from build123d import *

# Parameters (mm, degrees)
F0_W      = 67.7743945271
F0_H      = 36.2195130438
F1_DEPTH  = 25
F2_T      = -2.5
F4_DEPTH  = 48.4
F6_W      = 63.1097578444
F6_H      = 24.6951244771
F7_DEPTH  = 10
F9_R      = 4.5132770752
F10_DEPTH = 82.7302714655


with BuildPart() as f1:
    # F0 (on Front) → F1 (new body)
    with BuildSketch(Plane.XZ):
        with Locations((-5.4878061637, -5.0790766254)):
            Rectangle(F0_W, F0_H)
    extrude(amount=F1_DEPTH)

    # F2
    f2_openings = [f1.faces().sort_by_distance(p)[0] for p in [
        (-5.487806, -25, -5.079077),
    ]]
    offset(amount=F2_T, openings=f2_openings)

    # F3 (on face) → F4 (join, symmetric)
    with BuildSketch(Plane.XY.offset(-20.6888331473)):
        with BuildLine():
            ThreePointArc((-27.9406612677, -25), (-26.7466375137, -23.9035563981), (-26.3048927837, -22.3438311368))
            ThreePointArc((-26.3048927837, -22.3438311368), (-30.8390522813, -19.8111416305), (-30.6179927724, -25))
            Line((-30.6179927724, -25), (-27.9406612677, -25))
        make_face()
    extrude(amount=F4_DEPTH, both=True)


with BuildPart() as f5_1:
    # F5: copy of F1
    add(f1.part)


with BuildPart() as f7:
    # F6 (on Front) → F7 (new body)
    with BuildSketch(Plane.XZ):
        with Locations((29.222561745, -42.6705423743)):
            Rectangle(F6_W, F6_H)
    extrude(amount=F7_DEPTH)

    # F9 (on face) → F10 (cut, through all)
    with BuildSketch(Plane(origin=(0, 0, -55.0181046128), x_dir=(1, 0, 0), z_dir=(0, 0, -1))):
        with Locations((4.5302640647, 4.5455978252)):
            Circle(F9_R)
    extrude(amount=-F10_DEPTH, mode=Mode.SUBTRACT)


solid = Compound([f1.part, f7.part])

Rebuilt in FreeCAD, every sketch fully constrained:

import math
import FreeCAD as App
import Part
import Sketcher

V = App.Vector
Q = App.Units.Quantity


def faces_at(feature, points):
    """Names of the faces that lie closest to the given points."""
    faces = feature.Shape.Faces
    near = lambda p: min(range(len(faces)), key=lambda i: faces[i].distToShape(Part.Vertex(*p))[0])
    return sorted({f"Face{near(p) + 1}" for p in points})

doc = App.newDocument("Part")
body = doc.addObject("PartDesign::Body", "Body")

# Sketch on XZ plane
sketch1 = doc.addObject("Sketcher::SketchObject", "Sketch")
body.addObject(sketch1)
sketch1.AttachmentSupport = (doc.XZ_Plane, [""])
sketch1.MapMode = "FlatFace"
sketch1.addGeometry([
    Part.LineSegment(V(-39, 13, 0), V(-39, -23, 0)),
    Part.LineSegment(V(-39, -23, 0), V(28, -23, 0)),
    Part.LineSegment(V(28, -23, 0), V(28, 13, 0)),
    Part.LineSegment(V(28, 13, 0), V(-39, 13, 0)),
], False)
sketch1.addConstraint([
    Sketcher.Constraint("Coincident", 0, 2, 1, 1),
    Sketcher.Constraint("Coincident", 1, 2, 2, 1),
    Sketcher.Constraint("Coincident", 2, 2, 3, 1),
    Sketcher.Constraint("Coincident", 3, 2, 0, 1),
    Sketcher.Constraint("Vertical", 0),
    Sketcher.Constraint("Horizontal", 1),
    Sketcher.Constraint("Vertical", 2),
    Sketcher.Constraint("Horizontal", 3),
    Sketcher.Constraint("DistanceX", 1, 1, 1, 2, Q("67.774395 mm")),
    Sketcher.Constraint("DistanceY", 0, 2, 0, 1, Q("36.219513 mm")),
    Sketcher.Constraint("DistanceX", -1, 1, 1, 2, Q("28.399391 mm")),
    Sketcher.Constraint("DistanceY", -1, 1, 2, 2, Q("13.03068 mm")),
])
pad1 = doc.addObject("PartDesign::Pad", "Pad")
body.addObject(pad1)
pad1.Profile = sketch1
pad1.Length = 25
doc.recompute()

thickness = doc.addObject("PartDesign::Thickness", "Thickness")
body.addObject(thickness)
thickness.Base = (pad1, faces_at(pad1, [(-5.488, -25, -5.079)]))
thickness.Value = 2.5
thickness.Reversed = True
thickness.Join = "Arc"

# Sketch on XY plane
sketch2 = doc.addObject("Sketcher::SketchObject", "Sketch001")
body.addObject(sketch2)
sketch2.AttachmentSupport = (doc.XY_Plane, [""])
sketch2.MapMode = "FlatFace"
sketch2.AttachmentOffset = App.Placement(V(0, 0, -20.688833), App.Rotation())
sketch2.addGeometry([
    Part.ArcOfCircle(Part.Circle(V(-29.3, -22.3, 0), V(0, 0, 1), 3), math.radians(-63), math.radians(0)),
    Part.ArcOfCircle(Part.Circle(V(-29.3, -22.3, 0), V(0, 0, 1), 3), math.radians(0), math.radians(243)),
    Part.LineSegment(V(-30.6, -25, 0), V(-27.9, -25, 0)),
], False)
sketch2.addConstraint([
    Sketcher.Constraint("Tangent", 0, 2, 1, 1),
    Sketcher.Constraint("Coincident", 1, 2, 2, 1),
    Sketcher.Constraint("Coincident", 2, 2, 0, 1),
    Sketcher.Constraint("Horizontal", 2),
    Sketcher.Constraint("Equal", 0, 1),
    Sketcher.Constraint("Horizontal", 1, 3, 0, 2),
    Sketcher.Constraint("DistanceY", 1, 2, -1, 1, Q("25 mm")),
    Sketcher.Constraint("Radius", 0, Q("2.974434 mm")),
    Sketcher.Constraint("DistanceX", 2, 1, 2, 2, Q("2.677332 mm")),
    Sketcher.Constraint("DistanceX", 2, 2, -1, 1, Q("27.940661 mm")),
])
pad2 = doc.addObject("PartDesign::Pad", "Pad001")
body.addObject(pad2)
pad2.Profile = sketch2
pad2.Length = 96.8
pad2.Midplane = True
body2 = doc.addObject("PartDesign::Body", "Body001")
doc.recompute()

body2.BaseFeature = body
doc.recompute()
body3 = doc.addObject("PartDesign::Body", "Body002")

# Sketch on XZ plane
sketch3 = doc.addObject("Sketcher::SketchObject", "Sketch002")
body3.addObject(sketch3)
sketch3.AttachmentSupport = (doc.getObject("XZ_Plane002"), [""])
sketch3.MapMode = "FlatFace"
sketch3.addGeometry([
    Part.LineSegment(V(-2, -30, 0), V(-2, -55, 0)),
    Part.LineSegment(V(-2, -55, 0), V(61, -55, 0)),
    Part.LineSegment(V(61, -55, 0), V(61, -30, 0)),
    Part.LineSegment(V(61, -30, 0), V(-2, -30, 0)),
], False)
sketch3.addConstraint([
    Sketcher.Constraint("Coincident", 0, 2, 1, 1),
    Sketcher.Constraint("Coincident", 1, 2, 2, 1),
    Sketcher.Constraint("Coincident", 2, 2, 3, 1),
    Sketcher.Constraint("Coincident", 3, 2, 0, 1),
    Sketcher.Constraint("Vertical", 0),
    Sketcher.Constraint("Horizontal", 1),
    Sketcher.Constraint("Vertical", 2),
    Sketcher.Constraint("Horizontal", 3),
    Sketcher.Constraint("DistanceX", 1, 1, 1, 2, Q("63.109758 mm")),
    Sketcher.Constraint("DistanceY", 0, 2, 0, 1, Q("24.695124 mm")),
    Sketcher.Constraint("DistanceX", -1, 1, 1, 2, Q("60.777441 mm")),
    Sketcher.Constraint("DistanceY", 2, 2, -1, 1, Q("30.32298 mm")),
])
pad3 = doc.addObject("PartDesign::Pad", "Pad002")
body3.addObject(pad3)
pad3.Profile = sketch3
pad3.Length = 10

# Sketch on XY plane
sketch4 = doc.addObject("Sketcher::SketchObject", "Sketch003")
body3.addObject(sketch4)
sketch4.AttachmentSupport = (doc.getObject("XY_Plane002"), [""])
sketch4.MapMode = "FlatFace"
sketch4.AttachmentOffset = App.Placement(V(0, 0, -55.018105), App.Rotation())
sketch4.addGeometry(Part.Circle(V(4.5, -4.5, 0), V(0, 0, 1), 4.5), False)
sketch4.addConstraint([
    Sketcher.Constraint("Diameter", 0, Q("9.026554 mm")),
    Sketcher.Constraint("DistanceX", -1, 1, 0, 3, Q("4.530264 mm")),
    Sketcher.Constraint("DistanceY", 0, 3, -1, 1, Q("4.545598 mm")),
])
pocket1 = doc.addObject("PartDesign::Pocket", "Pocket")
body3.addObject(pocket1)
pocket1.Profile = sketch4
pocket1.Type = "ThroughAll"
pocket1.Reversed = True
body.Visibility = False

doc.recompute()
